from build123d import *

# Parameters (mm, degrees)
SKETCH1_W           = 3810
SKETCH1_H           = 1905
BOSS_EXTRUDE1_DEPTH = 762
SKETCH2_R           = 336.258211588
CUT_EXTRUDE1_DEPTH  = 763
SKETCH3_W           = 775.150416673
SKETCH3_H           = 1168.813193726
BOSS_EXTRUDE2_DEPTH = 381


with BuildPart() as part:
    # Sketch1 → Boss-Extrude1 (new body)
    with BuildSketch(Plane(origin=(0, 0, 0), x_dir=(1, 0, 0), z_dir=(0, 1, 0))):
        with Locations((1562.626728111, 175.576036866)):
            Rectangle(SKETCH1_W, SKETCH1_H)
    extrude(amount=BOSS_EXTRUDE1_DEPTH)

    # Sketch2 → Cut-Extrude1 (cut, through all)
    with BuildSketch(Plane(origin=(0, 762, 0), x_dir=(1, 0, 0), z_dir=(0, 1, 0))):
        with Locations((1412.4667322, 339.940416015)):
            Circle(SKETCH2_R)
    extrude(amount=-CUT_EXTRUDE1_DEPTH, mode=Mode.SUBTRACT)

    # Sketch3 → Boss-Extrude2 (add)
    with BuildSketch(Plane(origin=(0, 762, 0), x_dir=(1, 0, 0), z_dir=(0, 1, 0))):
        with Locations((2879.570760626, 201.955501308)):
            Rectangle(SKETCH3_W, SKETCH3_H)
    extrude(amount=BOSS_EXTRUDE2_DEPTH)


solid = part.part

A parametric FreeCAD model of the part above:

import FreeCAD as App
import Part
import Sketcher
Q = App.Units.Quantity


def add_polygon(sketch, points):
    """Adds a closed chain of lines whose ends are joined by coincident constraints."""
    first, n = sketch.GeometryCount, len(points)
    for a, b in zip(points, points[1:] + points[:1]):
        sketch.addGeometry(Part.LineSegment(App.Vector(*a, 0), App.Vector(*b, 0)), False)
    for i in range(n):
        sketch.addConstraint(Sketcher.Constraint("Coincident", first + i, 2, first + (i + 1) % n, 1))

doc = App.newDocument("Part")
body = doc.addObject("PartDesign::Body", "Body")

# Sketch on XZ plane
sketch1 = body.newObject("Sketcher::SketchObject", "Sketch")
sketch1.AttachmentSupport = (doc.getObject("XZ_Plane"), [""])
sketch1.MapMode = "FlatFace"
add_polygon(sketch1, [(-342, -1128), (-342, 777), (3468, 777), (3468, -1128)])  # lines 0-3
sketch1.addConstraint([
    Sketcher.Constraint("Vertical", 0),
    Sketcher.Constraint("Horizontal", 1),
    Sketcher.Constraint("Vertical", 2),
    Sketcher.Constraint("Horizontal", 3),
    Sketcher.Constraint("DistanceX", 1, 1, 1, 2, Q("150 in")),
    Sketcher.Constraint("DistanceY", 0, 1, 0, 2, Q("75 in")),
    Sketcher.Constraint("DistanceX", 0, 2, -1, 1, Q("342.373272 mm")),
    Sketcher.Constraint("DistanceY", -1, 1, 0, 2, Q("776.923963 mm")),
])
pad1 = body.newObject("PartDesign::Pad", "Pad")
pad1.Profile = sketch1
pad1.Length = Q("30 in")
pad1.Reversed = True

# Sketch on XZ plane
sketch2 = body.newObject("Sketcher::SketchObject", "Sketch001")
sketch2.AttachmentSupport = (doc.getObject("XZ_Plane"), [""])
sketch2.MapMode = "FlatFace"
sketch2.AttachmentOffset = App.Placement(App.Vector(0, 0, -30 * 25.4), App.Rotation())
sketch2.addGeometry(Part.Circle(App.Vector(1412, -340, 0), App.Vector(0, 0, 1), 336), False)
sketch2.addConstraint([
    Sketcher.Constraint("Diameter", 0, Q("672.516423 mm")),
    Sketcher.Constraint("DistanceX", -1, 1, 0, 3, Q("1412.466732 mm")),
    Sketcher.Constraint("DistanceY", 0, 3, -1, 1, Q("339.940416 mm")),
])
pocket1 = body.newObject("PartDesign::Pocket", "Pocket")
pocket1.Profile = sketch2
pocket1.Type = "ThroughAll"
pocket1.Reversed = True

# Sketch on XZ plane
sketch3 = body.newObject("Sketcher::SketchObject", "Sketch002")
sketch3.AttachmentSupport = (doc.getObject("XZ_Plane"), [""])
sketch3.MapMode = "FlatFace"
sketch3.AttachmentOffset = App.Placement(App.Vector(0, 0, -30 * 25.4), App.Rotation())
add_polygon(sketch3, [(2492, -786), (2492, 382), (3267, 382), (3267, -786)])  # lines 0-3
sketch3.addConstraint([
    Sketcher.Constraint("Vertical", 0),
    Sketcher.Constraint("Horizontal", 1),
    Sketcher.Constraint("Vertical", 2),
    Sketcher.Constraint("Horizontal", 3),
    Sketcher.Constraint("DistanceY", 2, 2, -1, 1, Q("786.362098 mm")),
    Sketcher.Constraint("DistanceX", 1, 1, 1, 2, Q("775.150417 mm")),
    Sketcher.Constraint("DistanceY", 0, 1, 0, 2, Q("1168.813194 mm")),
    Sketcher.Constraint("DistanceX", -1, 1, 1, 2, Q("3267.145969 mm")),
])
pad2 = body.newObject("PartDesign::Pad", "Pad001")
pad2.Profile = sketch3
pad2.Length = Q("15 in")
pad2.Reversed = True

doc.recompute()
